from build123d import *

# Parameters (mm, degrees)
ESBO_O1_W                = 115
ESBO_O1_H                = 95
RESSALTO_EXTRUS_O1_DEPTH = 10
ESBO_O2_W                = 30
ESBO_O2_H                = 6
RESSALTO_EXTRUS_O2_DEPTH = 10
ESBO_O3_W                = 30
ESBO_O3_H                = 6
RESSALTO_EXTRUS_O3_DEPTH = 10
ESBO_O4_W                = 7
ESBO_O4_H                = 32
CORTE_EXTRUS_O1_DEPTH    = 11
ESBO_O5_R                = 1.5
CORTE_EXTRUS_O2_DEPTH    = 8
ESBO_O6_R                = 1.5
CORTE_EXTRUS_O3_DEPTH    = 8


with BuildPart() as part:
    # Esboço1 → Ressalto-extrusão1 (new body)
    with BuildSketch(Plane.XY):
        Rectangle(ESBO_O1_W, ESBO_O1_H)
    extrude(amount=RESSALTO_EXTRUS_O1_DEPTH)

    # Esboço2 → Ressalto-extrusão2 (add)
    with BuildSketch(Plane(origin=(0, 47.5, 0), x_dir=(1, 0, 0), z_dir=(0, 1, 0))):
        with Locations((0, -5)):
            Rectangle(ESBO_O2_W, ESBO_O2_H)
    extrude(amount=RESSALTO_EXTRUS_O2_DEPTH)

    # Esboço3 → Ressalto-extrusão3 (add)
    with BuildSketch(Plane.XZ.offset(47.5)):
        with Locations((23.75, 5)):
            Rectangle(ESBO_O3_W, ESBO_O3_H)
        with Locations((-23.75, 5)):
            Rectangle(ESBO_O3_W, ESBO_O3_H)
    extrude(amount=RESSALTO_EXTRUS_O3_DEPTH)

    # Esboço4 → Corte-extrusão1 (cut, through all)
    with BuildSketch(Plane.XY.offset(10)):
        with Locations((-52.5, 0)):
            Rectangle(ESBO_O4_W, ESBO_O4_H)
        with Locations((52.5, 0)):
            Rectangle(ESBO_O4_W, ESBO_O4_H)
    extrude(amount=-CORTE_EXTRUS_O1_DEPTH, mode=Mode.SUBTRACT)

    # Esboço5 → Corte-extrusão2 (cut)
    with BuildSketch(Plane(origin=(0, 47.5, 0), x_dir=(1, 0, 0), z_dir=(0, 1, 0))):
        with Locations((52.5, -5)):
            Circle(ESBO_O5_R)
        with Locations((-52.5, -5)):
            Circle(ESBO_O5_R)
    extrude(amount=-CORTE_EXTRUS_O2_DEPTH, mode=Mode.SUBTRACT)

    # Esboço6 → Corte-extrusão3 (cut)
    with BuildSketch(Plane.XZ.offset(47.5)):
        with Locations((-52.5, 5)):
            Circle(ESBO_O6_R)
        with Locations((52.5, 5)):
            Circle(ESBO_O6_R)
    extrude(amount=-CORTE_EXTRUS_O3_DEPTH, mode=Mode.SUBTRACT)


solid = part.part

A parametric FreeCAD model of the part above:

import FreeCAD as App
import Part
import Sketcher

V = App.Vector

doc = App.newDocument("Part")
body = doc.addObject("PartDesign::Body", "Body")

# Sketch on XY plane
sketch1 = doc.addObject("Sketcher::SketchObject", "Sketch")
body.addObject(sketch1)
sketch1.AttachmentSupport = (doc.XY_Plane, [""])
sketch1.MapMode = "FlatFace"
sketch1.addGeometry([
    Part.LineSegment(V(-58, 48, 0), V(-58, -48, 0)),
    Part.LineSegment(V(-58, -48, 0), V(58, -48, 0)),
    Part.LineSegment(V(58, -48, 0), V(58, 48, 0)),
    Part.LineSegment(V(58, 48, 0), V(-58, 48, 0)),
], False)
sketch1.addConstraint([
    Sketcher.Constraint("Coincident", 0, 2, 1, 1),
    Sketcher.Constraint("Coincident", 1, 2, 2, 1),
    Sketcher.Constraint("Coincident", 2, 2, 3, 1),
    Sketcher.Constraint("Coincident", 3, 2, 0, 1),
    Sketcher.Constraint("Vertical", 0),
    Sketcher.Constraint("Horizontal", 1),
    Sketcher.Constraint("Vertical", 2),
    Sketcher.Constraint("Horizontal", 3),
    Sketcher.Constraint("Symmetric", 0, 2, 2, 2, -1, 1),
    Sketcher.Constraint("DistanceX", 1, 1, 1, 2, 115.0),
    Sketcher.Constraint("DistanceY", 0, 2, 0, 1, 95.0),
])
pad1 = doc.addObject("PartDesign::Pad", "Pad")
body.addObject(pad1)
pad1.Profile = sketch1
pad1.Length = 10

# Sketch on XZ plane
sketch2 = doc.addObject("Sketcher::SketchObject", "Sketch001")
body.addObject(sketch2)
sketch2.AttachmentSupport = (doc.XZ_Plane, [""])
sketch2.MapMode = "FlatFace"
sketch2.AttachmentOffset = App.Placement(V(0, 0, -47.5), App.Rotation())
sketch2.addGeometry([
    Part.LineSegment(V(-15, 2, 0), V(-15, 8, 0)),
    Part.LineSegment(V(-15, 8, 0), V(15, 8, 0)),
    Part.LineSegment(V(15, 8, 0), V(15, 2, 0)),
    Part.LineSegment(V(15, 2, 0), V(-15, 2, 0)),
], False)
sketch2.addConstraint([
    Sketcher.Constraint("Coincident", 0, 2, 1, 1),
    Sketcher.Constraint("Coincident", 1, 2, 2, 1),
    Sketcher.Constraint("Coincident", 2, 2, 3, 1),
    Sketcher.Constraint("Coincident", 3, 2, 0, 1),
    Sketcher.Constraint("Vertical", 0),
    Sketcher.Constraint("Horizontal", 1),
    Sketcher.Constraint("Vertical", 2),
    Sketcher.Constraint("Horizontal", 3),
    Sketcher.Constraint("DistanceX", 1, 1, 1, 2, 30.0),
    Sketcher.Constraint("DistanceY", 0, 1, 0, 2, 6.0),
    Sketcher.Constraint("DistanceX", 0, 2, -1, 1, 15.0),
    Sketcher.Constraint("DistanceY", -1, 1, 0, 2, 8.0),
])
pad2 = doc.addObject("PartDesign::Pad", "Pad001")
body.addObject(pad2)
pad2.Profile = sketch2
pad2.Length = 10
pad2.Reversed = True

# Sketch on XZ plane
sketch3 = doc.addObject("Sketcher::SketchObject", "Sketch002")
body.addObject(sketch3)
sketch3.AttachmentSupport = (doc.XZ_Plane, [""])
sketch3.MapMode = "FlatFace"
sketch3.AttachmentOffset = App.Placement(V(0, 0, 47.5), App.Rotation())
sketch3.addGeometry([
    Part.LineSegment(V(9, 8, 0), V(9, 2, 0)),  # 0
    Part.LineSegment(V(9, 2, 0), V(39, 2, 0)),  # 1
    Part.LineSegment(V(39, 2, 0), V(39, 8, 0)),  # 2
    Part.LineSegment(V(39, 8, 0), V(9, 8, 0)),  # 3
    Part.LineSegment(V(-39, 8, 0), V(-39, 2, 0)),  # 4
    Part.LineSegment(V(-39, 2, 0), V(-9, 2, 0)),  # 5
    Part.LineSegment(V(-9, 2, 0), V(-9, 8, 0)),  # 6
    Part.LineSegment(V(-9, 8, 0), V(-39, 8, 0)),  # 7
], False)
sketch3.addConstraint([
    Sketcher.Constraint("Coincident", 0, 2, 1, 1),
    Sketcher.Constraint("Coincident", 1, 2, 2, 1),
    Sketcher.Constraint("Coincident", 2, 2, 3, 1),
    Sketcher.Constraint("Coincident", 3, 2, 0, 1),
    Sketcher.Constraint("Coincident", 4, 2, 5, 1),
    Sketcher.Constraint("Coincident", 5, 2, 6, 1),
    Sketcher.Constraint("Coincident", 6, 2, 7, 1),
    Sketcher.Constraint("Coincident", 7, 2, 4, 1),
    Sketcher.Constraint("Vertical", 0),
    Sketcher.Constraint("Horizontal", 1),
    Sketcher.Constraint("Vertical", 2),
    Sketcher.Constraint("Horizontal", 3),
    Sketcher.Constraint("Vertical", 4),
    Sketcher.Constraint("Horizontal", 5),
    Sketcher.Constraint("Vertical", 6),
    Sketcher.Constraint("Horizontal", 7),
    Sketcher.Constraint("Symmetric", 1, 2, 4, 2, -2),
    Sketcher.Constraint("Symmetric", 3, 2, 6, 2, -2),
    Sketcher.Constraint("DistanceX", 1, 1, 1, 2, 30.0),
    Sketcher.Constraint("DistanceY", 0, 2, 0, 1, 6.0),
    Sketcher.Constraint("DistanceY", -1, 1, 0, 2, 2.0),
    Sketcher.Constraint("DistanceX", 4, 2, 0, 2, 47.5),
])
pad3 = doc.addObject("PartDesign::Pad", "Pad002")
body.addObject(pad3)
pad3.Profile = sketch3
pad3.Length = 10

# Sketch on XY plane
sketch4 = doc.addObject("Sketcher::SketchObject", "Sketch003")
body.addObject(sketch4)
sketch4.AttachmentSupport = (doc.XY_Plane, [""])
sketch4.MapMode = "FlatFace"
sketch4.AttachmentOffset = App.Placement(V(0, 0, 10), App.Rotation())
sketch4.addGeometry([
    Part.LineSegment(V(-56, 16, 0), V(-56, -16, 0)),  # 0
    Part.LineSegment(V(-56, -16, 0), V(-49, -16, 0)),  # 1
    Part.LineSegment(V(-49, -16, 0), V(-49, 16, 0)),  # 2
    Part.LineSegment(V(-49, 16, 0), V(-56, 16, 0)),  # 3
    Part.LineSegment(V(49, 16, 0), V(49, -16, 0)),  # 4
    Part.LineSegment(V(49, -16, 0), V(56, -16, 0)),  # 5
    Part.LineSegment(V(56, -16, 0), V(56, 16, 0)),  # 6
    Part.LineSegment(V(56, 16, 0), V(49, 16, 0)),  # 7
], False)
sketch4.addConstraint([
    Sketcher.Constraint("Coincident", 0, 2, 1, 1),
    Sketcher.Constraint("Coincident", 1, 2, 2, 1),
    Sketcher.Constraint("Coincident", 2, 2, 3, 1),
    Sketcher.Constraint("Coincident", 3, 2, 0, 1),
    Sketcher.Constraint("Coincident", 4, 2, 5, 1),
    Sketcher.Constraint("Coincident", 5, 2, 6, 1),
    Sketcher.Constraint("Coincident", 6, 2, 7, 1),
    Sketcher.Constraint("Coincident", 7, 2, 4, 1),
    Sketcher.Constraint("Vertical", 0),
    Sketcher.Constraint("Horizontal", 1),
    Sketcher.Constraint("Vertical", 2),
    Sketcher.Constraint("Horizontal", 3),
    Sketcher.Constraint("Vertical", 4),
    Sketcher.Constraint("Horizontal", 5),
    Sketcher.Constraint("Vertical", 6),
    Sketcher.Constraint("Horizontal", 7),
    Sketcher.Constraint("Symmetric", 2, 2, 4, 2, -1, 1),
    Sketcher.Constraint("Symmetric", 0, 2, 6, 2, -1, 1),
    Sketcher.Constraint("Horizontal", 1, 2, 4, 2),
    Sketcher.Constraint("DistanceX", 1, 1, 1, 2, 7.0),
    Sketcher.Constraint("DistanceY", 0, 2, 0, 1, 32.0),
    Sketcher.Constraint("DistanceX", 0, 2, -1, 1, 56.0),
])
pocket1 = doc.addObject("PartDesign::Pocket", "Pocket")
body.addObject(pocket1)
pocket1.Profile = sketch4
pocket1.Type = "ThroughAll"

# Sketch on XZ plane
sketch5 = doc.addObject("Sketcher::SketchObject", "Sketch004")
body.addObject(sketch5)
sketch5.AttachmentSupport = (doc.XZ_Plane, [""])
sketch5.MapMode = "FlatFace"
sketch5.AttachmentOffset = App.Placement(V(0, 0, -47.5), App.Rotation())
sketch5.addGeometry([
    Part.Circle(V(52.5, 5, 0), V(0, 0, 1), 1.5),
    Part.Circle(V(-52.5, 5, 0), V(0, 0, 1), 1.5),
], False)
sketch5.addConstraint([
    Sketcher.Constraint("Equal", 0, 1),
    Sketcher.Constraint("Symmetric", 0, 3, 1, 3, -2),
    Sketcher.Constraint("Diameter", 0, 3.0),
    Sketcher.Constraint("DistanceY", -1, 1, 0, 3, 5.0),
    Sketcher.Constraint("DistanceX", 1, 3, 0, 3, 105.0),
])
pocket2 = doc.addObject("PartDesign::Pocket", "Pocket001")
body.addObject(pocket2)
pocket2.Profile = sketch5
pocket2.Length = 8
pocket2.Reversed = True

# Sketch on XZ plane
sketch6 = doc.addObject("Sketcher::SketchObject", "Sketch005")
body.addObject(sketch6)
sketch6.AttachmentSupport = (doc.XZ_Plane, [""])
sketch6.MapMode = "FlatFace"
sketch6.AttachmentOffset = App.Placement(V(0, 0, 47.5), App.Rotation())
sketch6.addGeometry([
    Part.Circle(V(-52.5, 5, 0), V(0, 0, 1), 1.5),
    Part.Circle(V(52.5, 5, 0), V(0, 0, 1), 1.5),
], False)
sketch6.addConstraint([
    Sketcher.Constraint("Equal", 0, 1),
    Sketcher.Constraint("Symmetric", 0, 3, 1, 3, -2),
    Sketcher.Constraint("Diameter", 0, 3.0),
    Sketcher.Constraint("DistanceY", -1, 1, 0, 3, 5.0),
    Sketcher.Constraint("DistanceX", 0, 3, 1, 3, 105.0),
])
pocket3 = doc.addObject("PartDesign::Pocket", "Pocket002")
body.addObject(pocket3)
pocket3.Profile = sketch6
pocket3.Length = 8

doc.recompute()
